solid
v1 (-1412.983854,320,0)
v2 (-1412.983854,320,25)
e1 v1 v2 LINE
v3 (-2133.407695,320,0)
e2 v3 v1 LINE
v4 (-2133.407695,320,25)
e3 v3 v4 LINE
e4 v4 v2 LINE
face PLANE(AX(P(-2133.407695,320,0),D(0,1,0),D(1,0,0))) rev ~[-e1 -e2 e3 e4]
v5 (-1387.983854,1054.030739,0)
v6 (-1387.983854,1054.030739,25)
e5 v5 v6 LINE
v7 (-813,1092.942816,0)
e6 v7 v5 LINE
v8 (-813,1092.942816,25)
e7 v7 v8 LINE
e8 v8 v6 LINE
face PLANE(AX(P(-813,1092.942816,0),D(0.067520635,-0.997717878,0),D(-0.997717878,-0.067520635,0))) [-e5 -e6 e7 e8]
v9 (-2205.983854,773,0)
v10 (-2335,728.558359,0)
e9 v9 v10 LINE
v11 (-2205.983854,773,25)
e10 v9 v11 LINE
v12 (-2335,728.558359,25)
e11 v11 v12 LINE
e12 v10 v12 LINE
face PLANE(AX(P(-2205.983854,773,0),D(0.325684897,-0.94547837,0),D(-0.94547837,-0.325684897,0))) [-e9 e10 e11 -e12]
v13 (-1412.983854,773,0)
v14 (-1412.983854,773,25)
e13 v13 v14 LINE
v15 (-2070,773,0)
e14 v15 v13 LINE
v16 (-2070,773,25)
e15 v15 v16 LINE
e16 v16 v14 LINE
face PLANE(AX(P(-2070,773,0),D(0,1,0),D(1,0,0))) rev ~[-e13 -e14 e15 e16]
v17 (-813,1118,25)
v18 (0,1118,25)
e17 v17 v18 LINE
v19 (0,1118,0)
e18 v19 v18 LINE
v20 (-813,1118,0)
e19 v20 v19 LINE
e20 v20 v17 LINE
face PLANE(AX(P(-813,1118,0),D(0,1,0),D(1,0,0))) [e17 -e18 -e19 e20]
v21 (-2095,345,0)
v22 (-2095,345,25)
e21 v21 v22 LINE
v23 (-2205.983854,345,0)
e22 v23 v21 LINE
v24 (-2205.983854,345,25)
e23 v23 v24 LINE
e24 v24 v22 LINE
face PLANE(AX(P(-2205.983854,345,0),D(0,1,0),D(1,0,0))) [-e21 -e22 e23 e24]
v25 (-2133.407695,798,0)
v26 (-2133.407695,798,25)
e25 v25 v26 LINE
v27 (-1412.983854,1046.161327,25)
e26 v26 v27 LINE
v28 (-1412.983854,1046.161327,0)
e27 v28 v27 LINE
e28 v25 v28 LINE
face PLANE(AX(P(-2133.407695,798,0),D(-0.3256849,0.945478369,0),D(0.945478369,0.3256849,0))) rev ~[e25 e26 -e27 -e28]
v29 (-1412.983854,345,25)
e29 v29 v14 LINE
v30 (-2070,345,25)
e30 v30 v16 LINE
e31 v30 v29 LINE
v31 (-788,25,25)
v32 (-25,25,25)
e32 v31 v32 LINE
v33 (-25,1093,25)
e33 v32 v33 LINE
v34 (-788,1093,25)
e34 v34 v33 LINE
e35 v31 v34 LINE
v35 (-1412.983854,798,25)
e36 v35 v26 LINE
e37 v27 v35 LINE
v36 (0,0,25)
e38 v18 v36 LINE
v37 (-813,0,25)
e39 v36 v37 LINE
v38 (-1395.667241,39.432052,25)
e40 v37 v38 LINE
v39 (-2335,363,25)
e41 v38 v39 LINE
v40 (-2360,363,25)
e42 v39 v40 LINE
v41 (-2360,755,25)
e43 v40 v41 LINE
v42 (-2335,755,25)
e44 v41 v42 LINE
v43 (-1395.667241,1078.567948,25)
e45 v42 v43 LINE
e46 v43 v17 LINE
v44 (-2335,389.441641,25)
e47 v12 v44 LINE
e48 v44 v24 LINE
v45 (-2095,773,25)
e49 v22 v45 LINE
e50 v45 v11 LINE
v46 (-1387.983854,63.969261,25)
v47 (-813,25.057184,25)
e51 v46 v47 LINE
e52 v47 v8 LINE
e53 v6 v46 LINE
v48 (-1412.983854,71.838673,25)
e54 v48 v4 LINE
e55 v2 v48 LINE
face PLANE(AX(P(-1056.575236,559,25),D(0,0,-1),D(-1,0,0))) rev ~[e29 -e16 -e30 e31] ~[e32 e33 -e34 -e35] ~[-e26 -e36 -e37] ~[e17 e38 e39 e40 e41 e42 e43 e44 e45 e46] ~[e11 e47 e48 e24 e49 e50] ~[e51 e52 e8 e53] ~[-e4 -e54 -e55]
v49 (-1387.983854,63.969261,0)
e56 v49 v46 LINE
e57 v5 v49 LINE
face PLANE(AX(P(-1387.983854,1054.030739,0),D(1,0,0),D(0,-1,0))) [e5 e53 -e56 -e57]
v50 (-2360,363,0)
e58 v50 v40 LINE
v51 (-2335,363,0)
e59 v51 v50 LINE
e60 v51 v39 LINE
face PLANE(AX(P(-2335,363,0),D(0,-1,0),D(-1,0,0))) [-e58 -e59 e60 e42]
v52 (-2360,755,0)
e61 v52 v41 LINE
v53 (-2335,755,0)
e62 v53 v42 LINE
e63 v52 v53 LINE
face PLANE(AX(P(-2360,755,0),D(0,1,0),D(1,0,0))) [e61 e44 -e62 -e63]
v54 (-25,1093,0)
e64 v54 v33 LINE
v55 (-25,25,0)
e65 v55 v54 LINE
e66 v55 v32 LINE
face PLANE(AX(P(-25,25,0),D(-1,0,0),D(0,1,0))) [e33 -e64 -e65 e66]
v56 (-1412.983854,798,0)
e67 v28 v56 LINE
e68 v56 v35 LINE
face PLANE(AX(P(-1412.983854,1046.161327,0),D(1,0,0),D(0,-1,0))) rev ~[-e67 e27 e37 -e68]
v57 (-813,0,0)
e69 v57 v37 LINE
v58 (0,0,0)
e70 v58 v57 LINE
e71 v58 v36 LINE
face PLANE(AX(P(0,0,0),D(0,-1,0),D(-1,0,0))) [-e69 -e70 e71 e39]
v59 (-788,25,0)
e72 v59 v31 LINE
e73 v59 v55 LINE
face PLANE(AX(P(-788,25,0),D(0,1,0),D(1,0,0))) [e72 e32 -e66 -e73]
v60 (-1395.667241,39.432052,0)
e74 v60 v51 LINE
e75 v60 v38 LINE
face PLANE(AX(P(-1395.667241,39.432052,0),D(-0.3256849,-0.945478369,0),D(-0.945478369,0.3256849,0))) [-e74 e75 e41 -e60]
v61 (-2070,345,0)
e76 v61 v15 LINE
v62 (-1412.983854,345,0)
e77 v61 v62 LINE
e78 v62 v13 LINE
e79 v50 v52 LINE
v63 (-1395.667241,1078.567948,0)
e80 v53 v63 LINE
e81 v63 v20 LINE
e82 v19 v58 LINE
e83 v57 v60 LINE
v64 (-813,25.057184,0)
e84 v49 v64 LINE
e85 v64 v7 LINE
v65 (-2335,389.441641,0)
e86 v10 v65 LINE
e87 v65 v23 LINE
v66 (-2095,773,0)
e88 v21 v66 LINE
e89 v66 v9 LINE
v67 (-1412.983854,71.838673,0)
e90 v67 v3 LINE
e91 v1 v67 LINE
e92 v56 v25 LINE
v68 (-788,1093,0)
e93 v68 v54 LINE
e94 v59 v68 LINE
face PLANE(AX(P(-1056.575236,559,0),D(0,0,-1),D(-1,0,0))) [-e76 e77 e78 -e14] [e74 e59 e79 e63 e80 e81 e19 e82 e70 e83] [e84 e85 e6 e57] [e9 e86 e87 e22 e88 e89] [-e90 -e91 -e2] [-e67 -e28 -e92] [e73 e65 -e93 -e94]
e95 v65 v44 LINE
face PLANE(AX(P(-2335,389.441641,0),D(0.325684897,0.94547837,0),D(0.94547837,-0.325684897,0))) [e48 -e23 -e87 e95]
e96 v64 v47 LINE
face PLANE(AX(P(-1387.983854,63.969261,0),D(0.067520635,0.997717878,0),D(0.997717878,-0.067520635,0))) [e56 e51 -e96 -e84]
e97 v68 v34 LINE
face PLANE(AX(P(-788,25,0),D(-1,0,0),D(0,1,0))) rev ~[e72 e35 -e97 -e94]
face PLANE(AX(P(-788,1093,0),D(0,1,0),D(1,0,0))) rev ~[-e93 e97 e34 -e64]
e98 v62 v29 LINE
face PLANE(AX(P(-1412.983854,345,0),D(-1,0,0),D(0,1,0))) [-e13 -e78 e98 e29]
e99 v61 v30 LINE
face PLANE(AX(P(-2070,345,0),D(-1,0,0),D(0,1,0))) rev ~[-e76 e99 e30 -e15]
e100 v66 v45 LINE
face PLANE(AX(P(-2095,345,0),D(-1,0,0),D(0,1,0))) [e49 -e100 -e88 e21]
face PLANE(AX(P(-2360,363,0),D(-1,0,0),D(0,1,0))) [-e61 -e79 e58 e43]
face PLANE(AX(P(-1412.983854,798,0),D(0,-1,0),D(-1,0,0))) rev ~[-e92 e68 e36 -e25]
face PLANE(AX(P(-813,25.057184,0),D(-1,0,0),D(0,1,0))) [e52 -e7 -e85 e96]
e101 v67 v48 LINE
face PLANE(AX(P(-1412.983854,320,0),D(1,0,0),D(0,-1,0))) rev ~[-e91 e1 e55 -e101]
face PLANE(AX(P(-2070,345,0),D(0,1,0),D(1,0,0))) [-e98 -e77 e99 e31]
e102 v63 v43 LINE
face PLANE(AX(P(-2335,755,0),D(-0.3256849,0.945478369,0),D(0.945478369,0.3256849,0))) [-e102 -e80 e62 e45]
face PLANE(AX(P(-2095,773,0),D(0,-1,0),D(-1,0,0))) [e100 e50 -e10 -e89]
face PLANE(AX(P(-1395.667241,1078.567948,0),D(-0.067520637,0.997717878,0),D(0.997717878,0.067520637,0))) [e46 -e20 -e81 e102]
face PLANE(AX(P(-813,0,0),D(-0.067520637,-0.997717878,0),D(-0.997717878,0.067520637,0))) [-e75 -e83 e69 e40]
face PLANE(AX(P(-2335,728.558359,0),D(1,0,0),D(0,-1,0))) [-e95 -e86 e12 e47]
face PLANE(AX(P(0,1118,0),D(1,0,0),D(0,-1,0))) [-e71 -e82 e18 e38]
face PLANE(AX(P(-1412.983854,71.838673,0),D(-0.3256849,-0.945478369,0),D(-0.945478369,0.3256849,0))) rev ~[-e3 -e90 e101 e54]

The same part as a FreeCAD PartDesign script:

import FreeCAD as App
import Part
import Sketcher

V = App.Vector
Q = App.Units.Quantity


def add_polygon(sketch, points):
    """Adds a closed chain of lines whose ends are joined by coincident constraints."""
    first, n = sketch.GeometryCount, len(points)
    for a, b in zip(points, points[1:] + points[:1]):
        sketch.addGeometry(Part.LineSegment(App.Vector(*a, 0), App.Vector(*b, 0)), False)
    for i in range(n):
        sketch.addConstraint(Sketcher.Constraint("Coincident", first + i, 2, first + (i + 1) % n, 1))

doc = App.newDocument("Part")
params = doc.addObject("Spreadsheet::Sheet", "Params")
for row, (alias, value) in enumerate([
    ("sketch1_width", "813 mm"),
    ("sketch1_width2", "25 mm"),
    ("sketch1_width3", "763 mm"),
    ("sketch1_height", "1118 mm"),
    ("sketch1_height2", "392 mm"),
    ("pad1_length", "25 mm"),
], start=1):
    params.set(f"A{row}", alias)
    params.set(f"B{row}", "=" + value)
    params.setAlias(f"B{row}", alias)

body = doc.addObject("PartDesign::Body", "Body")

# Sketch on XY plane
sketch1 = doc.addObject("Sketcher::SketchObject", "Sketch")
body.addObject(sketch1)
sketch1.AttachmentSupport = (doc.XY_Plane, [""])
sketch1.MapMode = "FlatFace"
add_polygon(sketch1, [(-813, 0), (0, 0), (0, 1118), (-813, 1118), (-1396, 1079), (-2335, 755), (-2360, 755), (-2360, 363), (-2335, 363), (-1396, 39)])  # lines 0-9
add_polygon(sketch1, [(-2133, 320), (-1413, 320), (-1413, 72)])  # lines 10-12
add_polygon(sketch1, [(-788, 25), (-788, 1093), (-25, 1093), (-25, 25)])  # lines 13-16
add_polygon(sketch1, [(-1388, 1054), (-813, 1093), (-813, 25), (-1388, 64)])  # lines 17-20
add_polygon(sketch1, [(-2070, 345), (-2070, 773), (-1413, 773), (-1413, 345)])  # lines 21-24
add_polygon(sketch1, [(-2335, 729), (-2206, 773), (-2095, 773), (-2095, 345), (-2206, 345), (-2335, 389)])  # lines 25-30
add_polygon(sketch1, [(-2133, 798), (-1413, 1046), (-1413, 798)])  # lines 31-33
sketch1.addConstraint(Sketcher.Constraint("Horizontal", 0))
sketch1.addConstraint(Sketcher.Constraint("Vertical", 1))
sketch1.addConstraint(Sketcher.Constraint("Horizontal", 2))
sketch1.addConstraint(Sketcher.Constraint("Horizontal", 5))
sketch1.addConstraint(Sketcher.Constraint("Vertical", 6))
sketch1.addConstraint(Sketcher.Constraint("Horizontal", 7))
sketch1.addConstraint(Sketcher.Constraint("Horizontal", 10))
sketch1.addConstraint(Sketcher.Constraint("Vertical", 11))
sketch1.addConstraint(Sketcher.Constraint("Vertical", 13))
sketch1.addConstraint(Sketcher.Constraint("Horizontal", 14))
sketch1.addConstraint(Sketcher.Constraint("Vertical", 15))
sketch1.addConstraint(Sketcher.Constraint("Horizontal", 16))
sketch1.addConstraint(Sketcher.Constraint("Vertical", 18))
sketch1.addConstraint(Sketcher.Constraint("Vertical", 20))
sketch1.addConstraint(Sketcher.Constraint("Vertical", 21))
sketch1.addConstraint(Sketcher.Constraint("Horizontal", 22))
sketch1.addConstraint(Sketcher.Constraint("Vertical", 23))
sketch1.addConstraint(Sketcher.Constraint("Horizontal", 24))
sketch1.addConstraint(Sketcher.Constraint("Horizontal", 26))
sketch1.addConstraint(Sketcher.Constraint("Vertical", 27))
sketch1.addConstraint(Sketcher.Constraint("Horizontal", 28))
sketch1.addConstraint(Sketcher.Constraint("Vertical", 30))
sketch1.addConstraint(Sketcher.Constraint("Vertical", 32))
sketch1.addConstraint(Sketcher.Constraint("Horizontal", 33))
sketch1.addConstraint(Sketcher.Constraint("Coincident", 0, 2, -1, 1))
sketch1.addConstraint(Sketcher.Constraint("Parallel", 8, 12))
sketch1.addConstraint(Sketcher.Constraint("Parallel", 3, 17))
sketch1.addConstraint(Sketcher.Constraint("Parallel", 9, 19))
sketch1.addConstraint(Sketcher.Constraint("Parallel", 4, 25))
sketch1.addConstraint(Sketcher.Constraint("Parallel", 12, 29))
sketch1.addConstraint(Sketcher.Constraint("Parallel", 25, 31))
sketch1.addConstraint(Sketcher.Constraint("Horizontal", 22, 2, 25, 2))
sketch1.addConstraint(Sketcher.Constraint("Horizontal", 24, 2, 27, 2))
sketch1.addConstraint(Sketcher.Constraint("Vertical", 4, 2, 7, 2))
sketch1.addConstraint(Sketcher.Constraint("Vertical", 3, 2, 8, 2))
sketch1.addConstraint(Sketcher.Constraint("Vertical", 2, 2, 9, 2))
sketch1.addConstraint(Sketcher.Constraint("Vertical", 9, 2, 17, 2))
sketch1.addConstraint(Sketcher.Constraint("Vertical", 11, 2, 22, 2))
sketch1.addConstraint(Sketcher.Constraint("Vertical", 25, 2, 28, 2))
sketch1.addConstraint(Sketcher.Constraint("Vertical", 7, 2, 29, 2))
sketch1.addConstraint(Sketcher.Constraint("Vertical", 23, 2, 31, 2))
sketch1.addConstraint(Sketcher.Constraint("Vertical", 12, 2, 33, 2))
sketch1.addConstraint(Sketcher.Constraint("Equal", 11, 32))
sketch1.addConstraint(Sketcher.Constraint("Equal", 3, 9))
sketch1.addConstraint(Sketcher.Constraint("DistanceX", 0, 1, 0, 2, Q("813 mm")))
sketch1.addConstraint(Sketcher.Constraint("DistanceX", 5, 2, 5, 1, Q("25 mm")))
sketch1.addConstraint(Sketcher.Constraint("DistanceX", 14, 1, 14, 2, Q("763 mm")))
sketch1.addConstraint(Sketcher.Constraint("DistanceY", 1, 1, 1, 2, Q("1118 mm")))
sketch1.addConstraint(Sketcher.Constraint("DistanceY", 6, 2, 6, 1, Q("392 mm")))
sketch1.addConstraint(Sketcher.Constraint("DistanceY", 13, 1, 13, 2, Q("1068 mm")))
sketch1.addConstraint(Sketcher.Constraint("DistanceY", 21, 1, 21, 2, Q("428 mm")))
sketch1.addConstraint(Sketcher.Constraint("Distance", 3, Q("584 mm")))
sketch1.addConstraint(Sketcher.Constraint("DistanceX", 4, 2, -1, 1, Q("2335 mm")))
sketch1.addConstraint(Sketcher.Constraint("DistanceY", -1, 1, 10, 2, Q("320 mm")))
sketch1.addConstraint(Sketcher.Constraint("DistanceX", 13, 2, -1, 1, Q("788 mm")))
sketch1.addConstraint(Sketcher.Constraint("DistanceY", -1, 1, 13, 2, Q("1093 mm")))
sketch1.addConstraint(Sketcher.Constraint("DistanceX", 21, 2, -1, 1, Q("2070 mm")))
sketch1.addConstraint(Sketcher.Constraint("DistanceY", -1, 1, 21, 2, Q("773 mm")))
sketch1.addConstraint(Sketcher.Constraint("DistanceX", 26, 2, -1, 1, Q("2095 mm")))
sketch1.addConstraint(Sketcher.Constraint("DistanceY", -1, 1, 32, 2, Q("798 mm")))
sketch1.addConstraint(Sketcher.Constraint("DistanceX", 11, 2, 19, 2, Q("25 mm")))
sketch1.addConstraint(Sketcher.Constraint("Distance", 4, Q("993.5 mm")))
sketch1.addConstraint(Sketcher.Constraint("DistanceX", 10, 1, 10, 2, Q("720.423841 mm")))
sketch1.addConstraint(Sketcher.Constraint("DistanceY", 18, 2, 18, 1, Q("1067.885632 mm")))
sketch1.addConstraint(Sketcher.Constraint("DistanceY", 20, 1, 20, 2, Q("990.061478 mm")))
sketch1.addConstraint(Sketcher.Constraint("DistanceY", 30, 1, 30, 2, Q("339.116718 mm")))
sketch1.addConstraint(Sketcher.Constraint("DistanceY", -1, 1, 19, 2, Q("63.969261 mm")))
sketch1.setExpression("Constraints[78]", "Params.sketch1_width")
sketch1.setExpression("Constraints[79]", "Params.sketch1_width2")
sketch1.setExpression("Constraints[80]", "Params.sketch1_width3")
sketch1.setExpression("Constraints[81]", "Params.sketch1_height")
sketch1.setExpression("Constraints[82]", "Params.sketch1_height2")
pad1 = doc.addObject("PartDesign::Pad", "Pad")
body.addObject(pad1)
pad1.Profile = sketch1
pad1.setExpression("Length", "Params.pad1_length")

doc.recompute()
